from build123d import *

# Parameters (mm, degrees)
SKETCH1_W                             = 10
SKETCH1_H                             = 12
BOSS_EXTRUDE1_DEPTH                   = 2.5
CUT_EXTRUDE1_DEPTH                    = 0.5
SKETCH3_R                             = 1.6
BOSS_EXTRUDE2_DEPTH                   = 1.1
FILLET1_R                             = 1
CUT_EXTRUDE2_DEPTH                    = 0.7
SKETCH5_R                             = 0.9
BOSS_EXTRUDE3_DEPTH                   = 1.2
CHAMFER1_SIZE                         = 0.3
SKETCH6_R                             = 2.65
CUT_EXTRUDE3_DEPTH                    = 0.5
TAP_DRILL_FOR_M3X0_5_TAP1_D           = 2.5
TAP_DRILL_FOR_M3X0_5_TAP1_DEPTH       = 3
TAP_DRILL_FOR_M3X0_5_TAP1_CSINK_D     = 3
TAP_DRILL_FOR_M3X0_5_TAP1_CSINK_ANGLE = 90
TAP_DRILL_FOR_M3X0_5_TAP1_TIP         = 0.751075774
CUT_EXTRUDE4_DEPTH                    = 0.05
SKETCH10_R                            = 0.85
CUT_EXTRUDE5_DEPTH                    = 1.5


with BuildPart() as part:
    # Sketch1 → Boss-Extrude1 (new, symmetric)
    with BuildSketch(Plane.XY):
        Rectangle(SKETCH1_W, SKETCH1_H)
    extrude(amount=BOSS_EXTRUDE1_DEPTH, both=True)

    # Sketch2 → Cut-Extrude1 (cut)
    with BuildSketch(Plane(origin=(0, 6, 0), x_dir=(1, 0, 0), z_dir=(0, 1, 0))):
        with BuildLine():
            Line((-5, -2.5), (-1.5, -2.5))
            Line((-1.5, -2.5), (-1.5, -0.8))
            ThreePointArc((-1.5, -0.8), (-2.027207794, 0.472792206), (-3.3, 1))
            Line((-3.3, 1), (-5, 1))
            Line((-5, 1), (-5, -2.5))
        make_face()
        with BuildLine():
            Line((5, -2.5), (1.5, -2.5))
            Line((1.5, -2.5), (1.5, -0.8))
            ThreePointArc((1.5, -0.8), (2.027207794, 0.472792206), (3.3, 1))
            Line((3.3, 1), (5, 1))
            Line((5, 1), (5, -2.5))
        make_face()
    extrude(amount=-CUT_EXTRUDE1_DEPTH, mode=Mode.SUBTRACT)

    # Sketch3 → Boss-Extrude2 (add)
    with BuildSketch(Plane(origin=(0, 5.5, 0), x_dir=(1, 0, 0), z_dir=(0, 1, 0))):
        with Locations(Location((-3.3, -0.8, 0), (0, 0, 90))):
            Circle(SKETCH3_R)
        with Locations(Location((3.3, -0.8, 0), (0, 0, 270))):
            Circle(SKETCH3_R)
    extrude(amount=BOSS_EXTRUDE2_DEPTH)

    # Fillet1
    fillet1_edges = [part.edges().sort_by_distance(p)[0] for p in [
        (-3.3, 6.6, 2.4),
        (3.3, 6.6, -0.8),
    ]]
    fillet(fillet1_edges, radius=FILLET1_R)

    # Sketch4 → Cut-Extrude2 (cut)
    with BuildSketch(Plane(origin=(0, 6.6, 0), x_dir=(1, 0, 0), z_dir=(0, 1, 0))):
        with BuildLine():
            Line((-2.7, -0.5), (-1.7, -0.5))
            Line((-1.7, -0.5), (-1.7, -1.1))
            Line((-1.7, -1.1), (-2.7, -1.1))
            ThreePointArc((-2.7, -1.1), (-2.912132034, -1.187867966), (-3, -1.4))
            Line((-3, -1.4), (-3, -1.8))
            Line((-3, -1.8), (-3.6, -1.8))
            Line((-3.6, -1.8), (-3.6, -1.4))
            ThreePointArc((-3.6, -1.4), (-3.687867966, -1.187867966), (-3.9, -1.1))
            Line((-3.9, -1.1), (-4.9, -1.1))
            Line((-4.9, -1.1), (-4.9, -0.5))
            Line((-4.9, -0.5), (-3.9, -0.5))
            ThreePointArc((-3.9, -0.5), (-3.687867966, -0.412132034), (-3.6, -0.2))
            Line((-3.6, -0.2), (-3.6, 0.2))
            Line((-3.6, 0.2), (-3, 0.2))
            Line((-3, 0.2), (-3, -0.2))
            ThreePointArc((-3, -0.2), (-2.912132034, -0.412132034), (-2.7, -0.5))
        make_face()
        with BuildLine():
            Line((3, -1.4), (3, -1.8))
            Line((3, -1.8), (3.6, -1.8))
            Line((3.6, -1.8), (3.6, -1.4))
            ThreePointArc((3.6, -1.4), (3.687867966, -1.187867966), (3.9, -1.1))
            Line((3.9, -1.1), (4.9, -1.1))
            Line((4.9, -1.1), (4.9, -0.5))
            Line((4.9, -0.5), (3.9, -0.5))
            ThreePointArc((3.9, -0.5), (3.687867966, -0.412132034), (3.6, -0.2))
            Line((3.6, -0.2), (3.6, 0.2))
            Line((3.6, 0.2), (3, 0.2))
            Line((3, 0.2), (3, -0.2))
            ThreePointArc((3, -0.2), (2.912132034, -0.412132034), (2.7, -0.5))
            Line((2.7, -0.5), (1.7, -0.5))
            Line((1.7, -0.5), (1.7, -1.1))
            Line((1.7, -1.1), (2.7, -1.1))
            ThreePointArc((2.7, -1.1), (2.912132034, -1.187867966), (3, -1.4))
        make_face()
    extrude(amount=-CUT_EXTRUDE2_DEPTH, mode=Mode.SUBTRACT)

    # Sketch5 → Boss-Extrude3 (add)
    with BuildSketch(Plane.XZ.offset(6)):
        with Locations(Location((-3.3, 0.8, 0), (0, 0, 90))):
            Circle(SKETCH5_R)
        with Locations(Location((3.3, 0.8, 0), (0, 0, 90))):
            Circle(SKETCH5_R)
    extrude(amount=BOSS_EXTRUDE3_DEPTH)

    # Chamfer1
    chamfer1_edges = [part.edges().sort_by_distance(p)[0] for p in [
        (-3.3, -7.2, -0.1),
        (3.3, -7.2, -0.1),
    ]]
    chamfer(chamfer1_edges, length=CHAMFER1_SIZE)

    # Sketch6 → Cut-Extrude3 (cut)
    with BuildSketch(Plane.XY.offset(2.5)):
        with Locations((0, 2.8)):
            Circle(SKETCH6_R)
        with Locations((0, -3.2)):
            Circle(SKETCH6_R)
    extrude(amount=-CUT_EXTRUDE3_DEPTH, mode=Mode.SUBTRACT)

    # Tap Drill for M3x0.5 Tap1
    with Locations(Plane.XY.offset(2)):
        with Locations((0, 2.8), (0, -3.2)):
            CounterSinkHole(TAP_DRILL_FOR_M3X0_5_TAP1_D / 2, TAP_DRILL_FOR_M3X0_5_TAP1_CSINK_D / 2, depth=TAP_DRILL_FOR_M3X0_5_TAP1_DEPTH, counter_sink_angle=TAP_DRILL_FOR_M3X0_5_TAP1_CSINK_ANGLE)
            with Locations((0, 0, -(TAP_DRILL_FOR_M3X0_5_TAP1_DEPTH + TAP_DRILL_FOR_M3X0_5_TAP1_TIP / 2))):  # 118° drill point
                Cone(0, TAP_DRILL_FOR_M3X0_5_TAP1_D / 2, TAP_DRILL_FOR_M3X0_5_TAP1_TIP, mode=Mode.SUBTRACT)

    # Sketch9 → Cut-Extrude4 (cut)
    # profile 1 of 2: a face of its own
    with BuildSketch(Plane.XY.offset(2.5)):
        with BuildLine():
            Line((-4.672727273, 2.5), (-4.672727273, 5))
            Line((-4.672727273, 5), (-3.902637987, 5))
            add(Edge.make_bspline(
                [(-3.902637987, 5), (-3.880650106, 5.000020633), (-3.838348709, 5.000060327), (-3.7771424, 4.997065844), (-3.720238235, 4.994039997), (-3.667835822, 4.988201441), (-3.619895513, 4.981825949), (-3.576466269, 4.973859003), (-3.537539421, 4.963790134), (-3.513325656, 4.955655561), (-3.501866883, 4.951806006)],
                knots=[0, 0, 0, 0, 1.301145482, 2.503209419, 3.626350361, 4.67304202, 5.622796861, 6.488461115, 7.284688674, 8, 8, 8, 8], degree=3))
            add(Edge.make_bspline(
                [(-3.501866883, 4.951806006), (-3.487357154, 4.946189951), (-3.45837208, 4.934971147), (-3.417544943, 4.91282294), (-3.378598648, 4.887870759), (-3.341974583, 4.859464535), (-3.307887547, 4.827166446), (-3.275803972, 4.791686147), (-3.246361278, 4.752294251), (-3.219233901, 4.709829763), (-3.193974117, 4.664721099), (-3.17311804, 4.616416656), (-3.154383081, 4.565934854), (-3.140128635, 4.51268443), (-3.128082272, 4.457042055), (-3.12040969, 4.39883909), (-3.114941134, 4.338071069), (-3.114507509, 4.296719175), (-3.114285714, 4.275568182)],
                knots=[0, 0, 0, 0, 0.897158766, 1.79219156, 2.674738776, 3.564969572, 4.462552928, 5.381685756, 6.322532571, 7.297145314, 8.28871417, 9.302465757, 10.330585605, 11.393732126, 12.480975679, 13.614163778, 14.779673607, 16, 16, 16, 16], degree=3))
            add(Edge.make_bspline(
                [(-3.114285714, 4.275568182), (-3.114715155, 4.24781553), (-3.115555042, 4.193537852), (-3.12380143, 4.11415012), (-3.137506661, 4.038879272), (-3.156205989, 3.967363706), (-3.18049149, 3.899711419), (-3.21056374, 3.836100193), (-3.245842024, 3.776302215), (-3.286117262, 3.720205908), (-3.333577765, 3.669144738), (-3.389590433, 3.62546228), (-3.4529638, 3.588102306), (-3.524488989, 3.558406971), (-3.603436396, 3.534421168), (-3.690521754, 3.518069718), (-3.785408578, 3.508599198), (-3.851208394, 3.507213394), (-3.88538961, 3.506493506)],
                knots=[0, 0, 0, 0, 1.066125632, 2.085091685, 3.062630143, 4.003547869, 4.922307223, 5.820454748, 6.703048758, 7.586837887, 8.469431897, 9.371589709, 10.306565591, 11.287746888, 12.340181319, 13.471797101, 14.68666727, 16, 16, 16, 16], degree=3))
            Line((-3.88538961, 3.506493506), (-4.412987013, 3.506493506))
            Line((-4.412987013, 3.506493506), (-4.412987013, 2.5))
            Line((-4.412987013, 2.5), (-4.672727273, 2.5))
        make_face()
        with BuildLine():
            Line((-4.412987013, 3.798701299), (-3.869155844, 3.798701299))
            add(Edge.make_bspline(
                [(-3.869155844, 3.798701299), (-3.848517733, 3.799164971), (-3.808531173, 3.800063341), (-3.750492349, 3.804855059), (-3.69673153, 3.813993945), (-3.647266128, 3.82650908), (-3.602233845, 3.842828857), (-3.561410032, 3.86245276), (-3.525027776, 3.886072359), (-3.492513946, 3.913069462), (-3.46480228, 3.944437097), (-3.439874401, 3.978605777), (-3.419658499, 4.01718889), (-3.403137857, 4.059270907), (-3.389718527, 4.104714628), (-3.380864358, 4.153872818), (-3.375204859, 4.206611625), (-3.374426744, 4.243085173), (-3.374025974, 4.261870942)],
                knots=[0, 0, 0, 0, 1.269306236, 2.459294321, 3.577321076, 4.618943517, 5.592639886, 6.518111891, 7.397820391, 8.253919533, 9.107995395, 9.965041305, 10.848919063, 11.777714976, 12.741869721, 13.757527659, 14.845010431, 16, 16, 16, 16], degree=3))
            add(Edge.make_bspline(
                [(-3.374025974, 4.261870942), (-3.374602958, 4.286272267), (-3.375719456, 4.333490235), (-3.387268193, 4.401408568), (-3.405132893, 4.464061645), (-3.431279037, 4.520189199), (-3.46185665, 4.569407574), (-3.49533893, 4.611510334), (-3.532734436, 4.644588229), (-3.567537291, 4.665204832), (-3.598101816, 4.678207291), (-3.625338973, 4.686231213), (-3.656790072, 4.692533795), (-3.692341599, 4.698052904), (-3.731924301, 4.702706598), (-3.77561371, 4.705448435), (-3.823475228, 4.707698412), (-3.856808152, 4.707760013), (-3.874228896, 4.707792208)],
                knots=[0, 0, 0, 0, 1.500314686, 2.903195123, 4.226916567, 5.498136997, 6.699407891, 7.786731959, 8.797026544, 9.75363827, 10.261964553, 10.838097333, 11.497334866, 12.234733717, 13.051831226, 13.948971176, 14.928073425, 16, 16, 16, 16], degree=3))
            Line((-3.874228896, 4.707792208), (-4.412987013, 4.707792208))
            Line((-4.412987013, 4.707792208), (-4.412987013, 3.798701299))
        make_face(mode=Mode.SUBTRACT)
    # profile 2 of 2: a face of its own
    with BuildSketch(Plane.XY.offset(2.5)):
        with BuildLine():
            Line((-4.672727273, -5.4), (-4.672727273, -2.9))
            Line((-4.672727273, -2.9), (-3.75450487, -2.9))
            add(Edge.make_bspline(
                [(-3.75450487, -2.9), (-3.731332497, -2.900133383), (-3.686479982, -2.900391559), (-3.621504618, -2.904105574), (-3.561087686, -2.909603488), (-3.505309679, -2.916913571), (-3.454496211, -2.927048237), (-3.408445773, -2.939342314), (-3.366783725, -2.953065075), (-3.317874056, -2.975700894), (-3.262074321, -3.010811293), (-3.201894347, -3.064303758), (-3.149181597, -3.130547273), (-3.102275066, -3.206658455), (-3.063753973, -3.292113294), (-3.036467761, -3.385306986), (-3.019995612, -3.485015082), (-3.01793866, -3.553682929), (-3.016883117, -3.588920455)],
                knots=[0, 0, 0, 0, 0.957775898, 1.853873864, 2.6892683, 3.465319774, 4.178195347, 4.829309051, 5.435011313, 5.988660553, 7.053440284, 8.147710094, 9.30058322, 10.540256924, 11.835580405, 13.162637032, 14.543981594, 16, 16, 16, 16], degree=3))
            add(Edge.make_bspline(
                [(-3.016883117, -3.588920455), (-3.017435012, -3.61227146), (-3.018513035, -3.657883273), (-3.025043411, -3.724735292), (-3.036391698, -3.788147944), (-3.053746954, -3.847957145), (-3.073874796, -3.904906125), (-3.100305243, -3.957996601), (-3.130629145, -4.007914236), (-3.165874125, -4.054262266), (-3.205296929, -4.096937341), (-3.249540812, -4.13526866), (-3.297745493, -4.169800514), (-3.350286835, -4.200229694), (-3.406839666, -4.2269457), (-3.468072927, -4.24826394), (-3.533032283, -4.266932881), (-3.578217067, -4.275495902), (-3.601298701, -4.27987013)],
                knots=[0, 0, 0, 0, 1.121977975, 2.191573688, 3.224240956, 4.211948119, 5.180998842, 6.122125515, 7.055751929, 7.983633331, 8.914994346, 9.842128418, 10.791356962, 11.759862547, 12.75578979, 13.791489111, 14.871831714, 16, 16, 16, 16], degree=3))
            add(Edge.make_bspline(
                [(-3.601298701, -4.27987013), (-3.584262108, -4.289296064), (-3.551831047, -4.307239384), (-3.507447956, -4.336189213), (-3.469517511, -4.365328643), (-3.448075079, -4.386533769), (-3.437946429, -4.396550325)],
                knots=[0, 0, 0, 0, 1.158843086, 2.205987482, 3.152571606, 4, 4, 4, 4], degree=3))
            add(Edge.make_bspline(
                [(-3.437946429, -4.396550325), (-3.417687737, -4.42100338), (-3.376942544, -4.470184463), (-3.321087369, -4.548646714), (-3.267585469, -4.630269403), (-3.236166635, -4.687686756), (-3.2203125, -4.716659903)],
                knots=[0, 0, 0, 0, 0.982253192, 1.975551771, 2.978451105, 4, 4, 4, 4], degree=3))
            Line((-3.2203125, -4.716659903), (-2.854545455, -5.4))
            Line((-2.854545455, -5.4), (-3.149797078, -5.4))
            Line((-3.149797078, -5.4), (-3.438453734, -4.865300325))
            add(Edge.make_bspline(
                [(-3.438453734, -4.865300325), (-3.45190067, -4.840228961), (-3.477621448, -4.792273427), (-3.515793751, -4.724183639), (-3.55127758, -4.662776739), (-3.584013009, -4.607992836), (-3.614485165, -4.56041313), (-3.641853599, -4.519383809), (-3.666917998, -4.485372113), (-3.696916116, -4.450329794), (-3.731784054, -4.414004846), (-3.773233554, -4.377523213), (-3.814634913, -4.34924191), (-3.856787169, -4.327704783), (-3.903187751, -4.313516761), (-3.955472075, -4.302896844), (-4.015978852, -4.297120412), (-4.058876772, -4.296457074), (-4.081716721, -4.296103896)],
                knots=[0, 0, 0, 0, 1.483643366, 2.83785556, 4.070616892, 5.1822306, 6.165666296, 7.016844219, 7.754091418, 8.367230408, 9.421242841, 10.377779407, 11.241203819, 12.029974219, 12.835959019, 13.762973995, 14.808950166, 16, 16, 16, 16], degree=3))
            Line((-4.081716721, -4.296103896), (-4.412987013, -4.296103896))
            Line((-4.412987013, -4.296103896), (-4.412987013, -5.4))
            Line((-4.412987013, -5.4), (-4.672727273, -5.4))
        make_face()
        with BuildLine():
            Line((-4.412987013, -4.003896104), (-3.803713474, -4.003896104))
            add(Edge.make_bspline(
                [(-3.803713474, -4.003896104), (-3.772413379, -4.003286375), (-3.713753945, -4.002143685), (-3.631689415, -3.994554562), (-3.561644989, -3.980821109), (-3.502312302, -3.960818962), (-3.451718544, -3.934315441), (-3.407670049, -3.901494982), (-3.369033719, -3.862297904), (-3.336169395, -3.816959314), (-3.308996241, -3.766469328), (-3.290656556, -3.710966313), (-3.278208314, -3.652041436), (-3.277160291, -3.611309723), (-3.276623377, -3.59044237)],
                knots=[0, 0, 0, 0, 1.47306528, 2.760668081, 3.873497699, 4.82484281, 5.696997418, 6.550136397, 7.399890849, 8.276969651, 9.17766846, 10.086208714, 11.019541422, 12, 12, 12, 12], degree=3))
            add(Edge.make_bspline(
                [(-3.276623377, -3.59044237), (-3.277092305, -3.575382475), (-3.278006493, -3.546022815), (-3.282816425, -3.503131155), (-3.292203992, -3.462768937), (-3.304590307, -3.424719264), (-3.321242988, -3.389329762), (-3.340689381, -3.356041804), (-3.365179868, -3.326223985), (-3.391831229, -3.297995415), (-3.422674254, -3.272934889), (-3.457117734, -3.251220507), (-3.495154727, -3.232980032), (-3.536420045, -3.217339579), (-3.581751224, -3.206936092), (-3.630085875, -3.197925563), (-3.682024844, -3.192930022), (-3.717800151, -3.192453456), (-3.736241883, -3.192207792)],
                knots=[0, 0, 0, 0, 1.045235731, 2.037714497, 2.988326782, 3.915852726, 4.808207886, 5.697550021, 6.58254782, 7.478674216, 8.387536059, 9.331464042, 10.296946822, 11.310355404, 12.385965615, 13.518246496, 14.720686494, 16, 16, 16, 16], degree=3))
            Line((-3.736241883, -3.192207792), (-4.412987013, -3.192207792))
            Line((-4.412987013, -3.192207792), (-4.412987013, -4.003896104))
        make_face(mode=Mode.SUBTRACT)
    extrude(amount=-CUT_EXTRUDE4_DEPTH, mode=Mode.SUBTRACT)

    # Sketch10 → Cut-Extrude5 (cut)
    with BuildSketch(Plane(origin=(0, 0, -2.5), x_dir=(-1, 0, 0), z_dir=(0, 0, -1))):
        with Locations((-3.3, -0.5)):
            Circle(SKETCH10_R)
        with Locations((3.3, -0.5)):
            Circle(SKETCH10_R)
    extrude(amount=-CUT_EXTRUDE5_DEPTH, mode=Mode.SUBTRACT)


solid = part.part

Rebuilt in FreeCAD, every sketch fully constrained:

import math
import FreeCAD as App
import Part
import Sketcher


def edges_at(feature, points):
    """Names of the edges that pass closest to the given points."""
    edges = feature.Shape.Edges
    near = lambda p: min(range(len(edges)), key=lambda i: edges[i].distToShape(Part.Vertex(*p))[0])
    return sorted({f"Edge{near(p) + 1}" for p in points})

doc = App.newDocument("Part")
body = doc.addObject("PartDesign::Body", "Body")

# Sketch on XY plane
sketch1 = doc.addObject("Sketcher::SketchObject", "Sketch")
body.addObject(sketch1)
sketch1.AttachmentSupport = (doc.XY_Plane, [""])
sketch1.MapMode = "FlatFace"
sketch1.addGeometry([
    Part.LineSegment(App.Vector(-5, 6, 0), App.Vector(-5, -6, 0)),
    Part.LineSegment(App.Vector(-5, -6, 0), App.Vector(5, -6, 0)),
    Part.LineSegment(App.Vector(5, -6, 0), App.Vector(5, 6, 0)),
    Part.LineSegment(App.Vector(5, 6, 0), App.Vector(-5, 6, 0)),
], False)
sketch1.addConstraint([
    Sketcher.Constraint("Coincident", 0, 2, 1, 1),
    Sketcher.Constraint("Coincident", 1, 2, 2, 1),
    Sketcher.Constraint("Coincident", 2, 2, 3, 1),
    Sketcher.Constraint("Coincident", 3, 2, 0, 1),
    Sketcher.Constraint("Vertical", 0),
    Sketcher.Constraint("Horizontal", 1),
    Sketcher.Constraint("Vertical", 2),
    Sketcher.Constraint("Horizontal", 3),
    Sketcher.Constraint("Symmetric", 0, 2, 2, 2, -1, 1),
    Sketcher.Constraint("DistanceX", 1, 1, 1, 2, 10.0),
    Sketcher.Constraint("DistanceY", 0, 2, 0, 1, 12.0),
])
pad1 = doc.addObject("PartDesign::Pad", "Pad")
body.addObject(pad1)
pad1.Profile = sketch1
pad1.Length = 5
pad1.Midplane = True

# Sketch on XZ plane
sketch2 = doc.addObject("Sketcher::SketchObject", "Sketch001")
body.addObject(sketch2)
sketch2.AttachmentSupport = (doc.XZ_Plane, [""])
sketch2.MapMode = "FlatFace"
sketch2.AttachmentOffset = App.Placement(App.Vector(0, 0, -6), App.Rotation())
sketch2.addGeometry([
    Part.LineSegment(App.Vector(-5, 2.5, 0), App.Vector(-1.5, 2.5, 0)),  # 0
    Part.LineSegment(App.Vector(-1.5, 2.5, 0), App.Vector(-1.5, 0.8, 0)),  # 1
    Part.ArcOfCircle(Part.Circle(App.Vector(-3.3, 0.8, 0), App.Vector(0, 0, 1), 1.8), math.radians(-90), math.radians(0)),  # 2
    Part.LineSegment(App.Vector(-3.3, -1, 0), App.Vector(-5, -1, 0)),  # 3
    Part.LineSegment(App.Vector(-5, -1, 0), App.Vector(-5, 2.5, 0)),  # 4
    Part.LineSegment(App.Vector(1.5, 2.5, 0), App.Vector(5, 2.5, 0)),  # 5
    Part.LineSegment(App.Vector(5, 2.5, 0), App.Vector(5, -1, 0)),  # 6
    Part.LineSegment(App.Vector(5, -1, 0), App.Vector(3.3, -1, 0)),  # 7
    Part.ArcOfCircle(Part.Circle(App.Vector(3.3, 0.8, 0), App.Vector(0, 0, 1), 1.8), math.radians(180), math.radians(270)),  # 8
    Part.LineSegment(App.Vector(1.5, 0.8, 0), App.Vector(1.5, 2.5, 0)),  # 9
], False)
sketch2.addConstraint([
    Sketcher.Constraint("Coincident", 0, 2, 1, 1),
    Sketcher.Constraint("Tangent", 1, 2, 2, 2),
    Sketcher.Constraint("Tangent", 2, 1, 3, 1),
    Sketcher.Constraint("Coincident", 3, 2, 4, 1),
    Sketcher.Constraint("Coincident", 4, 2, 0, 1),
    Sketcher.Constraint("Coincident", 5, 2, 6, 1),
    Sketcher.Constraint("Coincident", 6, 2, 7, 1),
    Sketcher.Constraint("Tangent", 7, 2, 8, 2),
    Sketcher.Constraint("Tangent", 8, 1, 9, 1),
    Sketcher.Constraint("Coincident", 9, 2, 5, 1),
    Sketcher.Constraint("Horizontal", 0),
    Sketcher.Constraint("Vertical", 1),
    Sketcher.Constraint("Horizontal", 3),
    Sketcher.Constraint("Vertical", 4),
    Sketcher.Constraint("Horizontal", 5),
    Sketcher.Constraint("Vertical", 6),
    Sketcher.Constraint("Horizontal", 7),
    Sketcher.Constraint("Vertical", 9),
    Sketcher.Constraint("Equal", 2, 8),
    Sketcher.Constraint("Symmetric", 2, 3, 8, 3, -2),
    Sketcher.Constraint("Symmetric", 4, 2, 5, 2, -2),
    Sketcher.Constraint("Equal", 7, 1),
    Sketcher.Constraint("Radius", 2, 1.8),
    Sketcher.Constraint("DistanceX", 0, 1, 0, 2, 3.5),
    Sketcher.Constraint("DistanceY", 2, 1, -1, 1, 1.0),
    Sketcher.Constraint("DistanceX", 3, 2, -1, 1, 5.0),
])
pocket1 = doc.addObject("PartDesign::Pocket", "Pocket")
body.addObject(pocket1)
pocket1.Profile = sketch2
pocket1.Length = 0.5
pocket1.Reversed = True

# Sketch on XZ plane
sketch3 = doc.addObject("Sketcher::SketchObject", "Sketch002")
body.addObject(sketch3)
sketch3.AttachmentSupport = (doc.XZ_Plane, [""])
sketch3.MapMode = "FlatFace"
sketch3.AttachmentOffset = App.Placement(App.Vector(0, 0, -5.5), App.Rotation())
sketch3.addGeometry([
    Part.Circle(App.Vector(-3.3, 0.8, 0), App.Vector(0, 0, 1), 1.6),
    Part.Circle(App.Vector(3.3, 0.8, 0), App.Vector(0, 0, 1), 1.6),
], False)
sketch3.addConstraint([
    Sketcher.Constraint("Equal", 0, 1),
    Sketcher.Constraint("Symmetric", 0, 3, 1, 3, -2),
    Sketcher.Constraint("Diameter", 0, 3.2),
    Sketcher.Constraint("DistanceX", 0, 3, -1, 1, 3.3),
    Sketcher.Constraint("DistanceY", -1, 1, 0, 3, 0.8),
])
pad2 = doc.addObject("PartDesign::Pad", "Pad001")
body.addObject(pad2)
pad2.Profile = sketch3
pad2.Length = 1.1
pad2.Reversed = True
doc.recompute()

fillet = doc.addObject("PartDesign::Fillet", "Fillet")
body.addObject(fillet)
fillet.Base = (pad2, edges_at(pad2, [(-3.3, 6.6, 2.4), (3.3, 6.6, -0.8)]))
fillet.Radius = 1

# Sketch on XZ plane
sketch4 = doc.addObject("Sketcher::SketchObject", "Sketch003")
body.addObject(sketch4)
sketch4.AttachmentSupport = (doc.XZ_Plane, [""])
sketch4.MapMode = "FlatFace"
sketch4.AttachmentOffset = App.Placement(App.Vector(0, 0, -6.6), App.Rotation())
sketch4.addGeometry([
    Part.LineSegment(App.Vector(-1.7, 0.5, 0), App.Vector(-2.7, 0.5, 0)),  # 0
    Part.ArcOfCircle(Part.Circle(App.Vector(-2.7, 0.2, 0), App.Vector(0, 0, 1), 0.3), math.radians(90), math.radians(180)),  # 1
    Part.LineSegment(App.Vector(-3, 0.2, 0), App.Vector(-3, -0.2, 0)),  # 2
    Part.LineSegment(App.Vector(-3, -0.2, 0), App.Vector(-3.6, -0.2, 0)),  # 3
    Part.LineSegment(App.Vector(-3.6, -0.2, 0), App.Vector(-3.6, 0.2, 0)),  # 4
    Part.ArcOfCircle(Part.Circle(App.Vector(-3.9, 0.2, 0), App.Vector(0, 0, 1), 0.3), math.radians(0), math.radians(90)),  # 5
    Part.LineSegment(App.Vector(-3.9, 0.5, 0), App.Vector(-4.9, 0.5, 0)),  # 6
    Part.LineSegment(App.Vector(-4.9, 0.5, 0), App.Vector(-4.9, 1.1, 0)),  # 7
    Part.LineSegment(App.Vector(-4.9, 1.1, 0), App.Vector(-3.9, 1.1, 0)),  # 8
    Part.ArcOfCircle(Part.Circle(App.Vector(-3.9, 1.4, 0), App.Vector(0, 0, 1), 0.3), math.radians(-90), math.radians(0)),  # 9
    Part.LineSegment(App.Vector(-3.6, 1.4, 0), App.Vector(-3.6, 1.8, 0)),  # 10
    Part.LineSegment(App.Vector(-3.6, 1.8, 0), App.Vector(-3, 1.8, 0)),  # 11
    Part.LineSegment(App.Vector(-3, 1.8, 0), App.Vector(-3, 1.4, 0)),  # 12
    Part.ArcOfCircle(Part.Circle(App.Vector(-2.7, 1.4, 0), App.Vector(0, 0, 1), 0.3), math.radians(-180), math.radians(-90)),  # 13
    Part.LineSegment(App.Vector(-2.7, 1.1, 0), App.Vector(-1.7, 1.1, 0)),  # 14
    Part.LineSegment(App.Vector(-1.7, 1.1, 0), App.Vector(-1.7, 0.5, 0)),  # 15
    Part.LineSegment(App.Vector(3, 1.4, 0), App.Vector(3, 1.8, 0)),  # 16
    Part.LineSegment(App.Vector(3, 1.8, 0), App.Vector(3.6, 1.8, 0)),  # 17
    Part.LineSegment(App.Vector(3.6, 1.8, 0), App.Vector(3.6, 1.4, 0)),  # 18
    Part.ArcOfCircle(Part.Circle(App.Vector(3.9, 1.4, 0), App.Vector(0, 0, 1), 0.3), math.radians(-180), math.radians(-90)),  # 19
    Part.LineSegment(App.Vector(3.9, 1.1, 0), App.Vector(4.9, 1.1, 0)),  # 20
    Part.LineSegment(App.Vector(4.9, 1.1, 0), App.Vector(4.9, 0.5, 0)),  # 21
    Part.LineSegment(App.Vector(4.9, 0.5, 0), App.Vector(3.9, 0.5, 0)),  # 22
    Part.ArcOfCircle(Part.Circle(App.Vector(3.9, 0.2, 0), App.Vector(0, 0, 1), 0.3), math.radians(90), math.radians(180)),  # 23
    Part.LineSegment(App.Vector(3.6, 0.2, 0), App.Vector(3.6, -0.2, 0)),  # 24
    Part.LineSegment(App.Vector(3.6, -0.2, 0), App.Vector(3, -0.2, 0)),  # 25
    Part.LineSegment(App.Vector(3, -0.2, 0), App.Vector(3, 0.2, 0)),  # 26
    Part.ArcOfCircle(Part.Circle(App.Vector(2.7, 0.2, 0), App.Vector(0, 0, 1), 0.3), math.radians(0), math.radians(90)),  # 27
    Part.LineSegment(App.Vector(2.7, 0.5, 0), App.Vector(1.7, 0.5, 0)),  # 28
    Part.LineSegment(App.Vector(1.7, 0.5, 0), App.Vector(1.7, 1.1, 0)),  # 29
    Part.LineSegment(App.Vector(1.7, 1.1, 0), App.Vector(2.7, 1.1, 0)),  # 30
    Part.ArcOfCircle(Part.Circle(App.Vector(2.7, 1.4, 0), App.Vector(0, 0, 1), 0.3), math.radians(-90), math.radians(0)),  # 31
], False)
sketch4.addConstraint([
    Sketcher.Constraint("Tangent", 0, 2, 1, 1),
    Sketcher.Constraint("Tangent", 1, 2, 2, 1),
    Sketcher.Constraint("Coincident", 2, 2, 3, 1),
    Sketcher.Constraint("Coincident", 3, 2, 4, 1),
    Sketcher.Constraint("Tangent", 4, 2, 5, 1),
    Sketcher.Constraint("Tangent", 5, 2, 6, 1),
    Sketcher.Constraint("Coincident", 6, 2, 7, 1),
    Sketcher.Constraint("Coincident", 7, 2, 8, 1),
    Sketcher.Constraint("Tangent", 8, 2, 9, 1),
    Sketcher.Constraint("Tangent", 9, 2, 10, 1),
    Sketcher.Constraint("Coincident", 10, 2, 11, 1),
    Sketcher.Constraint("Coincident", 11, 2, 12, 1),
    Sketcher.Constraint("Tangent", 12, 2, 13, 1),
    Sketcher.Constraint("Tangent", 13, 2, 14, 1),
    Sketcher.Constraint("Coincident", 14, 2, 15, 1),
    Sketcher.Constraint("Coincident", 15, 2, 0, 1),
    Sketcher.Constraint("Coincident", 16, 2, 17, 1),
    Sketcher.Constraint("Coincident", 17, 2, 18, 1),
    Sketcher.Constraint("Tangent", 18, 2, 19, 1),
    Sketcher.Constraint("Tangent", 19, 2, 20, 1),
    Sketcher.Constraint("Coincident", 20, 2, 21, 1),
    Sketcher.Constraint("Coincident", 21, 2, 22, 1),
    Sketcher.Constraint("Tangent", 22, 2, 23, 1),
    Sketcher.Constraint("Tangent", 23, 2, 24, 1),
    Sketcher.Constraint("Coincident", 24, 2, 25, 1),
    Sketcher.Constraint("Coincident", 25, 2, 26, 1),
    Sketcher.Constraint("Tangent", 26, 2, 27, 1),
    Sketcher.Constraint("Tangent", 27, 2, 28, 1),
    Sketcher.Constraint("Coincident", 28, 2, 29, 1),
    Sketcher.Constraint("Coincident", 29, 2, 30, 1),
    Sketcher.Constraint("Tangent", 30, 2, 31, 1),
    Sketcher.Constraint("Tangent", 31, 2, 16, 1),
    Sketcher.Constraint("Horizontal", 0),
    Sketcher.Constraint("Vertical", 2),
    Sketcher.Constraint("Horizontal", 3),
    Sketcher.Constraint("Vertical", 4),
    Sketcher.Constraint("Horizontal", 6),
    Sketcher.Constraint("Vertical", 7),
    Sketcher.Constraint("Horizontal", 8),
    Sketcher.Constraint("Vertical", 10),
    Sketcher.Constraint("Horizontal", 11),
    Sketcher.Constraint("Vertical", 12),
    Sketcher.Constraint("Horizontal", 14),
    Sketcher.Constraint("Vertical", 15),
    Sketcher.Constraint("Vertical", 16),
    Sketcher.Constraint("Horizontal", 17),
    Sketcher.Constraint("Vertical", 18),
    Sketcher.Constraint("Horizontal", 20),
    Sketcher.Constraint("Vertical", 21),
    Sketcher.Constraint("Horizontal", 22),
    Sketcher.Constraint("Vertical", 24),
    Sketcher.Constraint("Horizontal", 25),
    Sketcher.Constraint("Vertical", 26),
    Sketcher.Constraint("Horizontal", 28),
    Sketcher.Constraint("Vertical", 29),
    Sketcher.Constraint("Horizontal", 30),
    Sketcher.Constraint("Equal", 1, 5),
    Sketcher.Constraint("Equal", 5, 9),
    Sketcher.Constraint("Equal", 9, 13),
    Sketcher.Constraint("Equal", 13, 19),
    Sketcher.Constraint("Equal", 19, 23),
    Sketcher.Constraint("Equal", 23, 27),
    Sketcher.Constraint("Equal", 27, 31),
    Sketcher.Constraint("Symmetric", 3, 2, 23, 2, -1, 1),
    Sketcher.Constraint("Symmetric", 1, 2, 25, 2, -1, 1),
    Sketcher.Constraint("Symmetric", 9, 3, 19, 3, -2),
    Sketcher.Constraint("Symmetric", 13, 3, 31, 3, -2),
    Sketcher.Constraint("Symmetric", 6, 2, 21, 2, -2),
    Sketcher.Constraint("Symmetric", 15, 2, 28, 2, -2),
    Sketcher.Constraint("Horizontal", 1, 3, 5, 3),
    Sketcher.Constraint("Horizontal", 9, 3, 13, 3),
    Sketcher.Constraint("Horizontal", 11, 2, 16, 2),
    Sketcher.Constraint("Vertical", 5, 3, 9, 3),
    Sketcher.Constraint("Vertical", 1, 3, 13, 3),
    Sketcher.Constraint("Equal", 0, 6),
    Sketcher.Constraint("Equal", 25, 7),
    Sketcher.Constraint("Equal", 4, 10),
    Sketcher.Constraint("Radius", 1, 0.3),
    Sketcher.Constraint("DistanceX", 0, 2, 0, 1, 1.0),
    Sketcher.Constraint("DistanceX", 3, 2, 3, 1, 0.6),
    Sketcher.Constraint("DistanceY", 2, 2, 2, 1, 0.4),
    Sketcher.Constraint("DistanceX", 1, 2, -1, 1, 3.0),
])
pocket2 = doc.addObject("PartDesign::Pocket", "Pocket001")
body.addObject(pocket2)
pocket2.Profile = sketch4
pocket2.Length = 0.7
pocket2.Reversed = True

# Sketch on XZ plane
sketch5 = doc.addObject("Sketcher::SketchObject", "Sketch004")
body.addObject(sketch5)
sketch5.AttachmentSupport = (doc.XZ_Plane, [""])
sketch5.MapMode = "FlatFace"
sketch5.AttachmentOffset = App.Placement(App.Vector(0, 0, 6), App.Rotation())
sketch5.addGeometry([
    Part.Circle(App.Vector(-3.3, 0.8, 0), App.Vector(0, 0, 1), 0.9),
    Part.Circle(App.Vector(3.3, 0.8, 0), App.Vector(0, 0, 1), 0.9),
], False)
sketch5.addConstraint([
    Sketcher.Constraint("Equal", 0, 1),
    Sketcher.Constraint("Symmetric", 0, 3, 1, 3, -2),
    Sketcher.Constraint("Diameter", 0, 1.8),
    Sketcher.Constraint("DistanceX", 0, 3, -1, 1, 3.3),
    Sketcher.Constraint("DistanceY", -1, 1, 0, 3, 0.8),
])
pad3 = doc.addObject("PartDesign::Pad", "Pad002")
body.addObject(pad3)
pad3.Profile = sketch5
pad3.Length = 1.2
doc.recompute()

chamfer = doc.addObject("PartDesign::Chamfer", "Chamfer")
body.addObject(chamfer)
chamfer.Base = (pad3, edges_at(pad3, [(-3.3, -7.2, -0.1), (3.3, -7.2, -0.1)]))
chamfer.Size = 0.3

# Sketch on XY plane
sketch6 = doc.addObject("Sketcher::SketchObject", "Sketch005")
body.addObject(sketch6)
sketch6.AttachmentSupport = (doc.XY_Plane, [""])
sketch6.MapMode = "FlatFace"
sketch6.AttachmentOffset = App.Placement(App.Vector(0, 0, 2.5), App.Rotation())
sketch6.addGeometry([
    Part.Circle(App.Vector(0, 2.8, 0), App.Vector(0, 0, 1), 2.6),
    Part.Circle(App.Vector(0, -3.2, 0), App.Vector(0, 0, 1), 2.6),
], False)
sketch6.addConstraint([
    Sketcher.Constraint("Equal", 0, 1),
    Sketcher.Constraint("PointOnObject", 0, 3, -2),
    Sketcher.Constraint("PointOnObject", 1, 3, -2),
    Sketcher.Constraint("Diameter", 0, 5.3),
    Sketcher.Constraint("DistanceY", 1, 3, 0, 3, 6.0),
    Sketcher.Constraint("DistanceY", -1, 1, 0, 3, 2.8),
])
pocket3 = doc.addObject("PartDesign::Pocket", "Pocket002")
body.addObject(pocket3)
pocket3.Profile = sketch6
pocket3.Length = 0.5

# Sketch on XY plane
sketch7 = doc.addObject("Sketcher::SketchObject", "Sketch006")
body.addObject(sketch7)
sketch7.AttachmentSupport = (doc.XY_Plane, [""])
sketch7.MapMode = "FlatFace"
sketch7.AttachmentOffset = App.Placement(App.Vector(0, 0, 2), App.Rotation())
sketch7.addGeometry([
    Part.Circle(App.Vector(0, 2.8, 0), App.Vector(0, 0, 1), 1.2),
    Part.Circle(App.Vector(0, -3.2, 0), App.Vector(0, 0, 1), 1.2),
], False)
sketch7.addConstraint([
    Sketcher.Constraint("Equal", 0, 1),
    Sketcher.Constraint("PointOnObject", 0, 3, -2),
    Sketcher.Constraint("PointOnObject", 1, 3, -2),
    Sketcher.Constraint("Diameter", 0, 2.5),
    Sketcher.Constraint("DistanceY", 1, 3, 0, 3, 6.0),
    Sketcher.Constraint("DistanceY", -1, 1, 0, 3, 2.8),
])
doc.recompute()
hole = doc.addObject("PartDesign::Hole", "Hole")
body.addObject(hole)
hole.Profile = sketch7
hole.ThreadType = "None"
hole.Diameter = 2.5
hole.DepthType = "Dimension"
hole.Depth = 3
hole.DrillPoint = "Angled"
hole.DrillPointAngle = 118
hole.HoleCutType = "Countersink"
hole.HoleCutDiameter = 3
hole.HoleCutCountersinkAngle = 90

# Sketch on XY plane
sketch8 = doc.addObject("Sketcher::SketchObject", "Sketch007")
body.addObject(sketch8)
sketch8.AttachmentSupport = (doc.XY_Plane, [""])
sketch8.MapMode = "FlatFace"
sketch8.AttachmentOffset = App.Placement(App.Vector(0, 0, 2.5), App.Rotation())
sketch8.addGeometry([
    Part.LineSegment(App.Vector(-4.672727, 5, 0), App.Vector(-4.672727, 2.5, 0)),  # 0
    Part.LineSegment(App.Vector(-4.672727, 2.5, 0), App.Vector(-4.412987, 2.5, 0)),  # 1
    Part.LineSegment(App.Vector(-4.412987, 2.5, 0), App.Vector(-4.412987, 3.506494, 0)),  # 2
    Part.LineSegment(App.Vector(-4.412987, 3.506494, 0), App.Vector(-3.88539, 3.506494, 0)),  # 3
    Part.BSplineCurve([App.Vector(-3.114286, 4.275568, 0), App.Vector(-3.114715, 4.247816, 0), App.Vector(-3.115555, 4.193538, 0), App.Vector(-3.123801, 4.11415, 0), App.Vector(-3.137507, 4.038879, 0), App.Vector(-3.156206, 3.967364, 0), App.Vector(-3.180491, 3.899711, 0), App.Vector(-3.210564, 3.8361, 0), App.Vector(-3.245842, 3.776302, 0), App.Vector(-3.286117, 3.720206, 0), App.Vector(-3.333578, 3.669145, 0), App.Vector(-3.38959, 3.625462, 0), App.Vector(-3.452964, 3.588102, 0), App.Vector(-3.524489, 3.558407, 0), App.Vector(-3.603436, 3.534421, 0), App.Vector(-3.690522, 3.51807, 0), App.Vector(-3.785409, 3.508599, 0), App.Vector(-3.851208, 3.507213, 0), App.Vector(-3.88539, 3.506494, 0)], [4, 1, 1, 1, 1, 1, 1, 1, 1, 1, 1, 1, 1, 1, 1, 1, 4], [0, 1.066125632, 2.085091685, 3.062630143, 4.003547869, 4.922307223, 5.820454748, 6.703048758, 7.586837887, 8.469431897, 9.371589709, 10.306565591, 11.287746888, 12.340181319, 13.471797101, 14.68666727, 16], False, 3, [1, 1, 1, 1, 1, 1, 1, 1, 1, 1, 1, 1, 1, 1, 1, 1, 1, 1, 1], False),  # 4
    Part.BSplineCurve([App.Vector(-3.501867, 4.951806, 0), App.Vector(-3.487357, 4.94619, 0), App.Vector(-3.458372, 4.934971, 0), App.Vector(-3.417545, 4.912823, 0), App.Vector(-3.378599, 4.887871, 0), App.Vector(-3.341975, 4.859465, 0), App.Vector(-3.307888, 4.827166, 0), App.Vector(-3.275804, 4.791686, 0), App.Vector(-3.246361, 4.752294, 0), App.Vector(-3.219234, 4.70983, 0), App.Vector(-3.193974, 4.664721, 0), App.Vector(-3.173118, 4.616417, 0), App.Vector(-3.154383, 4.565935, 0), App.Vector(-3.140129, 4.512684, 0), App.Vector(-3.128082, 4.457042, 0), App.Vector(-3.12041, 4.398839, 0), App.Vector(-3.114941, 4.338071, 0), App.Vector(-3.114508, 4.296719, 0), App.Vector(-3.114286, 4.275568, 0)], [4, 1, 1, 1, 1, 1, 1, 1, 1, 1, 1, 1, 1, 1, 1, 1, 4], [0, 0.897158766, 1.79219156, 2.674738776, 3.564969572, 4.462552928, 5.381685756, 6.322532571, 7.297145314, 8.28871417, 9.302465757, 10.330585605, 11.393732126, 12.480975679, 13.614163778, 14.779673607, 16], False, 3, [1, 1, 1, 1, 1, 1, 1, 1, 1, 1, 1, 1, 1, 1, 1, 1, 1, 1, 1], False),  # 5
    Part.BSplineCurve([App.Vector(-3.902638, 5, 0), App.Vector(-3.88065, 5.000021, 0), App.Vector(-3.838349, 5.00006, 0), App.Vector(-3.777142, 4.997066, 0), App.Vector(-3.720238, 4.99404, 0), App.Vector(-3.667836, 4.988201, 0), App.Vector(-3.619896, 4.981826, 0), App.Vector(-3.576466, 4.973859, 0), App.Vector(-3.537539, 4.96379, 0), App.Vector(-3.513326, 4.955656, 0), App.Vector(-3.501867, 4.951806, 0)], [4, 1, 1, 1, 1, 1, 1, 1, 4], [0, 1.301145482, 2.503209419, 3.626350361, 4.67304202, 5.622796861, 6.488461115, 7.284688674, 8], False, 3, [1, 1, 1, 1, 1, 1, 1, 1, 1, 1, 1], False),  # 6
    Part.LineSegment(App.Vector(-3.902638, 5, 0), App.Vector(-4.672727, 5, 0)),  # 7
    Part.LineSegment(App.Vector(-4.412987, 3.798701, 0), App.Vector(-4.412987, 4.707792, 0)),  # 8
    Part.LineSegment(App.Vector(-4.412987, 4.707792, 0), App.Vector(-3.874229, 4.707792, 0)),  # 9
    Part.BSplineCurve([App.Vector(-3.374026, 4.261871, 0), App.Vector(-3.374603, 4.286272, 0), App.Vector(-3.375719, 4.33349, 0), App.Vector(-3.387268, 4.401409, 0), App.Vector(-3.405133, 4.464062, 0), App.Vector(-3.431279, 4.520189, 0), App.Vector(-3.461857, 4.569408, 0), App.Vector(-3.495339, 4.61151, 0), App.Vector(-3.532734, 4.644588, 0), App.Vector(-3.567537, 4.665205, 0), App.Vector(-3.598102, 4.678207, 0), App.Vector(-3.625339, 4.686231, 0), App.Vector(-3.65679, 4.692534, 0), App.Vector(-3.692342, 4.698053, 0), App.Vector(-3.731924, 4.702707, 0), App.Vector(-3.775614, 4.705448, 0), App.Vector(-3.823475, 4.707698, 0), App.Vector(-3.856808, 4.70776, 0), App.Vector(-3.874229, 4.707792, 0)], [4, 1, 1, 1, 1, 1, 1, 1, 1, 1, 1, 1, 1, 1, 1, 1, 4], [0, 1.500314686, 2.903195123, 4.226916567, 5.498136997, 6.699407891, 7.786731959, 8.797026544, 9.75363827, 10.261964553, 10.838097333, 11.497334866, 12.234733717, 13.051831226, 13.948971176, 14.928073425, 16], False, 3, [1, 1, 1, 1, 1, 1, 1, 1, 1, 1, 1, 1, 1, 1, 1, 1, 1, 1, 1], False),  # 10
    Part.BSplineCurve([App.Vector(-3.869156, 3.798701, 0), App.Vector(-3.848518, 3.799165, 0), App.Vector(-3.808531, 3.800063, 0), App.Vector(-3.750492, 3.804855, 0), App.Vector(-3.696732, 3.813994, 0), App.Vector(-3.647266, 3.826509, 0), App.Vector(-3.602234, 3.842829, 0), App.Vector(-3.56141, 3.862453, 0), App.Vector(-3.525028, 3.886072, 0), App.Vector(-3.492514, 3.913069, 0), App.Vector(-3.464802, 3.944437, 0), App.Vector(-3.439874, 3.978606, 0), App.Vector(-3.419658, 4.017189, 0), App.Vector(-3.403138, 4.059271, 0), App.Vector(-3.389719, 4.104715, 0), App.Vector(-3.380864, 4.153873, 0), App.Vector(-3.375205, 4.206612, 0), App.Vector(-3.374427, 4.243085, 0), App.Vector(-3.374026, 4.261871, 0)], [4, 1, 1, 1, 1, 1, 1, 1, 1, 1, 1, 1, 1, 1, 1, 1, 4], [0, 1.269306236, 2.459294321, 3.577321076, 4.618943517, 5.592639886, 6.518111891, 7.397820391, 8.253919533, 9.107995395, 9.965041305, 10.848919063, 11.777714976, 12.741869721, 13.757527659, 14.845010431, 16], False, 3, [1, 1, 1, 1, 1, 1, 1, 1, 1, 1, 1, 1, 1, 1, 1, 1, 1, 1, 1], False),  # 11
    Part.LineSegment(App.Vector(-3.869156, 3.798701, 0), App.Vector(-4.412987, 3.798701, 0)),  # 12
    Part.LineSegment(App.Vector(-4.672727, -2.9, 0), App.Vector(-4.672727, -5.4, 0)),  # 13
    Part.LineSegment(App.Vector(-4.672727, -5.4, 0), App.Vector(-4.412987, -5.4, 0)),  # 14
    Part.LineSegment(App.Vector(-4.412987, -5.4, 0), App.Vector(-4.412987, -4.296104, 0)),  # 15
    Part.LineSegment(App.Vector(-4.412987, -4.296104, 0), App.Vector(-4.081717, -4.296104, 0)),  # 16
    Part.BSplineCurve([App.Vector(-3.438454, -4.8653, 0), App.Vector(-3.451901, -4.840229, 0), App.Vector(-3.477621, -4.792273, 0), App.Vector(-3.515794, -4.724184, 0), App.Vector(-3.551278, -4.662777, 0), App.Vector(-3.584013, -4.607993, 0), App.Vector(-3.614485, -4.560413, 0), App.Vector(-3.641854, -4.519384, 0), App.Vector(-3.666918, -4.485372, 0), App.Vector(-3.696916, -4.45033, 0), App.Vector(-3.731784, -4.414005, 0), App.Vector(-3.773234, -4.377523, 0), App.Vector(-3.814635, -4.349242, 0), App.Vector(-3.856787, -4.327705, 0), App.Vector(-3.903188, -4.313517, 0), App.Vector(-3.955472, -4.302897, 0), App.Vector(-4.015979, -4.29712, 0), App.Vector(-4.058877, -4.296457, 0), App.Vector(-4.081717, -4.296104, 0)], [4, 1, 1, 1, 1, 1, 1, 1, 1, 1, 1, 1, 1, 1, 1, 1, 4], [0, 1.483643366, 2.83785556, 4.070616892, 5.1822306, 6.165666296, 7.016844219, 7.754091418, 8.367230408, 9.421242841, 10.377779407, 11.241203819, 12.029974219, 12.835959019, 13.762973995, 14.808950166, 16], False, 3, [1, 1, 1, 1, 1, 1, 1, 1, 1, 1, 1, 1, 1, 1, 1, 1, 1, 1, 1], False),  # 17
    Part.LineSegment(App.Vector(-3.438454, -4.8653, 0), App.Vector(-3.149797, -5.4, 0)),  # 18
    Part.LineSegment(App.Vector(-3.149797, -5.4, 0), App.Vector(-2.854545, -5.4, 0)),  # 19
    Part.LineSegment(App.Vector(-2.854545, -5.4, 0), App.Vector(-3.220312, -4.71666, 0)),  # 20
    Part.BSplineCurve([App.Vector(-3.437946, -4.39655, 0), App.Vector(-3.417688, -4.421003, 0), App.Vector(-3.376943, -4.470184, 0), App.Vector(-3.321087, -4.548647, 0), App.Vector(-3.267585, -4.630269, 0), App.Vector(-3.236167, -4.687687, 0), App.Vector(-3.220312, -4.71666, 0)], [4, 1, 1, 1, 4], [0, 0.982253192, 1.975551771, 2.978451105, 4], False, 3, [1, 1, 1, 1, 1, 1, 1], False),  # 21
    Part.BSplineCurve([App.Vector(-3.601299, -4.27987, 0), App.Vector(-3.584262, -4.289296, 0), App.Vector(-3.551831, -4.307239, 0), App.Vector(-3.507448, -4.336189, 0), App.Vector(-3.469518, -4.365329, 0), App.Vector(-3.448075, -4.386534, 0), App.Vector(-3.437946, -4.39655, 0)], [4, 1, 1, 1, 4], [0, 1.158843086, 2.205987482, 3.152571606, 4], False, 3, [1, 1, 1, 1, 1, 1, 1], False),  # 22
    Part.BSplineCurve([App.Vector(-3.016883, -3.58892, 0), App.Vector(-3.017435, -3.612271, 0), App.Vector(-3.018513, -3.657883, 0), App.Vector(-3.025043, -3.724735, 0), App.Vector(-3.036392, -3.788148, 0), App.Vector(-3.053747, -3.847957, 0), App.Vector(-3.073875, -3.904906, 0), App.Vector(-3.100305, -3.957997, 0), App.Vector(-3.130629, -4.007914, 0), App.Vector(-3.165874, -4.054262, 0), App.Vector(-3.205297, -4.096937, 0), App.Vector(-3.249541, -4.135269, 0), App.Vector(-3.297745, -4.169801, 0), App.Vector(-3.350287, -4.20023, 0), App.Vector(-3.40684, -4.226946, 0), App.Vector(-3.468073, -4.248264, 0), App.Vector(-3.533032, -4.266933, 0), App.Vector(-3.578217, -4.275496, 0), App.Vector(-3.601299, -4.27987, 0)], [4, 1, 1, 1, 1, 1, 1, 1, 1, 1, 1, 1, 1, 1, 1, 1, 4], [0, 1.121977975, 2.191573688, 3.224240956, 4.211948119, 5.180998842, 6.122125515, 7.055751929, 7.983633331, 8.914994346, 9.842128418, 10.791356962, 11.759862547, 12.75578979, 13.791489111, 14.871831714, 16], False, 3, [1, 1, 1, 1, 1, 1, 1, 1, 1, 1, 1, 1, 1, 1, 1, 1, 1, 1, 1], False),  # 23
    Part.BSplineCurve([App.Vector(-3.754505, -2.9, 0), App.Vector(-3.731332, -2.900133, 0), App.Vector(-3.68648, -2.900392, 0), App.Vector(-3.621505, -2.904106, 0), App.Vector(-3.561088, -2.909603, 0), App.Vector(-3.50531, -2.916914, 0), App.Vector(-3.454496, -2.927048, 0), App.Vector(-3.408446, -2.939342, 0), App.Vector(-3.366784, -2.953065, 0), App.Vector(-3.317874, -2.975701, 0), App.Vector(-3.262074, -3.010811, 0), App.Vector(-3.201894, -3.064304, 0), App.Vector(-3.149182, -3.130547, 0), App.Vector(-3.102275, -3.206658, 0), App.Vector(-3.063754, -3.292113, 0), App.Vector(-3.036468, -3.385307, 0), App.Vector(-3.019996, -3.485015, 0), App.Vector(-3.017939, -3.553683, 0), App.Vector(-3.016883, -3.58892, 0)], [4, 1, 1, 1, 1, 1, 1, 1, 1, 1, 1, 1, 1, 1, 1, 1, 4], [0, 0.957775898, 1.853873864, 2.6892683, 3.465319774, 4.178195347, 4.829309051, 5.435011313, 5.988660553, 7.053440284, 8.147710094, 9.30058322, 10.540256924, 11.835580405, 13.162637032, 14.543981594, 16], False, 3, [1, 1, 1, 1, 1, 1, 1, 1, 1, 1, 1, 1, 1, 1, 1, 1, 1, 1, 1], False),  # 24
    Part.LineSegment(App.Vector(-3.754505, -2.9, 0), App.Vector(-4.672727, -2.9, 0)),  # 25
    Part.LineSegment(App.Vector(-4.412987, -4.003896, 0), App.Vector(-4.412987, -3.192208, 0)),  # 26
    Part.LineSegment(App.Vector(-4.412987, -3.192208, 0), App.Vector(-3.736242, -3.192208, 0)),  # 27
    Part.BSplineCurve([App.Vector(-3.276623, -3.590442, 0), App.Vector(-3.277092, -3.575382, 0), App.Vector(-3.278006, -3.546023, 0), App.Vector(-3.282816, -3.503131, 0), App.Vector(-3.292204, -3.462769, 0), App.Vector(-3.30459, -3.424719, 0), App.Vector(-3.321243, -3.38933, 0), App.Vector(-3.340689, -3.356042, 0), App.Vector(-3.36518, -3.326224, 0), App.Vector(-3.391831, -3.297995, 0), App.Vector(-3.422674, -3.272935, 0), App.Vector(-3.457118, -3.251221, 0), App.Vector(-3.495155, -3.23298, 0), App.Vector(-3.53642, -3.21734, 0), App.Vector(-3.581751, -3.206936, 0), App.Vector(-3.630086, -3.197926, 0), App.Vector(-3.682025, -3.19293, 0), App.Vector(-3.7178, -3.192453, 0), App.Vector(-3.736242, -3.192208, 0)], [4, 1, 1, 1, 1, 1, 1, 1, 1, 1, 1, 1, 1, 1, 1, 1, 4], [0, 1.045235731, 2.037714497, 2.988326782, 3.915852726, 4.808207886, 5.697550021, 6.58254782, 7.478674216, 8.387536059, 9.331464042, 10.296946822, 11.310355404, 12.385965615, 13.518246496, 14.720686494, 16], False, 3, [1, 1, 1, 1, 1, 1, 1, 1, 1, 1, 1, 1, 1, 1, 1, 1, 1, 1, 1], False),  # 28
    Part.BSplineCurve([App.Vector(-3.803713, -4.003896, 0), App.Vector(-3.772413, -4.003286, 0), App.Vector(-3.713754, -4.002144, 0), App.Vector(-3.631689, -3.994555, 0), App.Vector(-3.561645, -3.980821, 0), App.Vector(-3.502312, -3.960819, 0), App.Vector(-3.451719, -3.934315, 0), App.Vector(-3.40767, -3.901495, 0), App.Vector(-3.369034, -3.862298, 0), App.Vector(-3.336169, -3.816959, 0), App.Vector(-3.308996, -3.766469, 0), App.Vector(-3.290657, -3.710966, 0), App.Vector(-3.278208, -3.652041, 0), App.Vector(-3.27716, -3.61131, 0), App.Vector(-3.276623, -3.590442, 0)], [4, 1, 1, 1, 1, 1, 1, 1, 1, 1, 1, 1, 4], [0, 1.47306528, 2.760668081, 3.873497699, 4.82484281, 5.696997418, 6.550136397, 7.399890849, 8.276969651, 9.17766846, 10.086208714, 11.019541422, 12], False, 3, [1, 1, 1, 1, 1, 1, 1, 1, 1, 1, 1, 1, 1, 1, 1], False),  # 29
    Part.LineSegment(App.Vector(-3.803713, -4.003896, 0), App.Vector(-4.412987, -4.003896, 0)),  # 30
], False)
sketch8.addConstraint([
    Sketcher.Constraint("Block", 4),
    Sketcher.Constraint("Block", 5),
    Sketcher.Constraint("Block", 6),
    Sketcher.Constraint("Block", 10),
    Sketcher.Constraint("Block", 11),
    Sketcher.Constraint("Block", 17),
    Sketcher.Constraint("Block", 21),
    Sketcher.Constraint("Block", 22),
    Sketcher.Constraint("Block", 23),
    Sketcher.Constraint("Block", 24),
    Sketcher.Constraint("Block", 28),
    Sketcher.Constraint("Block", 29),
    Sketcher.Constraint("Coincident", 0, 2, 1, 1),
    Sketcher.Constraint("Coincident", 1, 2, 2, 1),
    Sketcher.Constraint("Coincident", 2, 2, 3, 1),
    Sketcher.Constraint("Coincident", 3, 2, 4, 2),
    Sketcher.Constraint("Coincident", 6, 1, 7, 1),
    Sketcher.Constraint("Coincident", 7, 2, 0, 1),
    Sketcher.Constraint("Coincident", 8, 2, 9, 1),
    Sketcher.Constraint("Coincident", 9, 2, 10, 2),
    Sketcher.Constraint("Coincident", 11, 1, 12, 1),
    Sketcher.Constraint("Coincident", 12, 2, 8, 1),
    Sketcher.Constraint("Coincident", 13, 2, 14, 1),
    Sketcher.Constraint("Coincident", 14, 2, 15, 1),
    Sketcher.Constraint("Coincident", 15, 2, 16, 1),
    Sketcher.Constraint("Coincident", 16, 2, 17, 2),
    Sketcher.Constraint("Coincident", 17, 1, 18, 1),
    Sketcher.Constraint("Coincident", 18, 2, 19, 1),
    Sketcher.Constraint("Coincident", 19, 2, 20, 1),
    Sketcher.Constraint("Coincident", 20, 2, 21, 2),
    Sketcher.Constraint("Coincident", 24, 1, 25, 1),
    Sketcher.Constraint("Coincident", 25, 2, 13, 1),
    Sketcher.Constraint("Coincident", 26, 2, 27, 1),
    Sketcher.Constraint("Coincident", 27, 2, 28, 2),
    Sketcher.Constraint("Coincident", 29, 1, 30, 1),
    Sketcher.Constraint("Coincident", 30, 2, 26, 1),
    Sketcher.Constraint("Vertical", 0),
    Sketcher.Constraint("Horizontal", 1),
    Sketcher.Constraint("Vertical", 2),
    Sketcher.Constraint("Horizontal", 3),
    Sketcher.Constraint("Horizontal", 7),
    Sketcher.Constraint("Vertical", 8),
    Sketcher.Constraint("Horizontal", 9),
    Sketcher.Constraint("Horizontal", 12),
    Sketcher.Constraint("Vertical", 13),
    Sketcher.Constraint("Horizontal", 14),
    Sketcher.Constraint("Vertical", 15),
    Sketcher.Constraint("Horizontal", 16),
    Sketcher.Constraint("Horizontal", 19),
    Sketcher.Constraint("Horizontal", 25),
    Sketcher.Constraint("Vertical", 26),
    Sketcher.Constraint("Horizontal", 27),
    Sketcher.Constraint("Horizontal", 30),
    Sketcher.Constraint("Horizontal", 14, 2, 18, 2),
    Sketcher.Constraint("Vertical", 2, 2, 8, 2),
    Sketcher.Constraint("Vertical", 7, 2, 13, 2),
    Sketcher.Constraint("Vertical", 12, 2, 14, 2),
    Sketcher.Constraint("Vertical", 15, 2, 26, 2),
    Sketcher.Constraint("Equal", 0, 13),
    Sketcher.Constraint("DistanceY", 0, 2, 0, 1, 2.5),
    Sketcher.Constraint("DistanceX", 1, 1, 1, 2, 0.25974),
    Sketcher.Constraint("DistanceX", 7, 2, 7, 1, 0.770089),
    Sketcher.Constraint("DistanceX", 19, 1, 19, 2, 0.295252),
    Sketcher.Constraint("Distance", 18, 0.60764),
])
pocket4 = doc.addObject("PartDesign::Pocket", "Pocket003")
body.addObject(pocket4)
pocket4.Profile = sketch8
pocket4.Length = 0.05

# Sketch on XY plane
sketch9 = doc.addObject("Sketcher::SketchObject", "Sketch008")
body.addObject(sketch9)
sketch9.AttachmentSupport = (doc.XY_Plane, [""])
sketch9.MapMode = "FlatFace"
sketch9.AttachmentOffset = App.Placement(App.Vector(0, 0, -2.5), App.Rotation())
sketch9.addGeometry([
    Part.Circle(App.Vector(3.3, -0.5, 0), App.Vector(0, 0, 1), 0.8),
    Part.Circle(App.Vector(-3.3, -0.5, 0), App.Vector(0, 0, 1), 0.8),
], False)
sketch9.addConstraint([
    Sketcher.Constraint("Equal", 0, 1),
    Sketcher.Constraint("Symmetric", 0, 3, 1, 3, -2),
    Sketcher.Constraint("Diameter", 0, 1.7),
    Sketcher.Constraint("DistanceX", -1, 1, 0, 3, 3.3),
    Sketcher.Constraint("DistanceY", 0, 3, -1, 1, 0.5),
])
pocket5 = doc.addObject("PartDesign::Pocket", "Pocket004")
body.addObject(pocket5)
pocket5.Profile = sketch9
pocket5.Length = 1.5
pocket5.Reversed = True

doc.recompute()
